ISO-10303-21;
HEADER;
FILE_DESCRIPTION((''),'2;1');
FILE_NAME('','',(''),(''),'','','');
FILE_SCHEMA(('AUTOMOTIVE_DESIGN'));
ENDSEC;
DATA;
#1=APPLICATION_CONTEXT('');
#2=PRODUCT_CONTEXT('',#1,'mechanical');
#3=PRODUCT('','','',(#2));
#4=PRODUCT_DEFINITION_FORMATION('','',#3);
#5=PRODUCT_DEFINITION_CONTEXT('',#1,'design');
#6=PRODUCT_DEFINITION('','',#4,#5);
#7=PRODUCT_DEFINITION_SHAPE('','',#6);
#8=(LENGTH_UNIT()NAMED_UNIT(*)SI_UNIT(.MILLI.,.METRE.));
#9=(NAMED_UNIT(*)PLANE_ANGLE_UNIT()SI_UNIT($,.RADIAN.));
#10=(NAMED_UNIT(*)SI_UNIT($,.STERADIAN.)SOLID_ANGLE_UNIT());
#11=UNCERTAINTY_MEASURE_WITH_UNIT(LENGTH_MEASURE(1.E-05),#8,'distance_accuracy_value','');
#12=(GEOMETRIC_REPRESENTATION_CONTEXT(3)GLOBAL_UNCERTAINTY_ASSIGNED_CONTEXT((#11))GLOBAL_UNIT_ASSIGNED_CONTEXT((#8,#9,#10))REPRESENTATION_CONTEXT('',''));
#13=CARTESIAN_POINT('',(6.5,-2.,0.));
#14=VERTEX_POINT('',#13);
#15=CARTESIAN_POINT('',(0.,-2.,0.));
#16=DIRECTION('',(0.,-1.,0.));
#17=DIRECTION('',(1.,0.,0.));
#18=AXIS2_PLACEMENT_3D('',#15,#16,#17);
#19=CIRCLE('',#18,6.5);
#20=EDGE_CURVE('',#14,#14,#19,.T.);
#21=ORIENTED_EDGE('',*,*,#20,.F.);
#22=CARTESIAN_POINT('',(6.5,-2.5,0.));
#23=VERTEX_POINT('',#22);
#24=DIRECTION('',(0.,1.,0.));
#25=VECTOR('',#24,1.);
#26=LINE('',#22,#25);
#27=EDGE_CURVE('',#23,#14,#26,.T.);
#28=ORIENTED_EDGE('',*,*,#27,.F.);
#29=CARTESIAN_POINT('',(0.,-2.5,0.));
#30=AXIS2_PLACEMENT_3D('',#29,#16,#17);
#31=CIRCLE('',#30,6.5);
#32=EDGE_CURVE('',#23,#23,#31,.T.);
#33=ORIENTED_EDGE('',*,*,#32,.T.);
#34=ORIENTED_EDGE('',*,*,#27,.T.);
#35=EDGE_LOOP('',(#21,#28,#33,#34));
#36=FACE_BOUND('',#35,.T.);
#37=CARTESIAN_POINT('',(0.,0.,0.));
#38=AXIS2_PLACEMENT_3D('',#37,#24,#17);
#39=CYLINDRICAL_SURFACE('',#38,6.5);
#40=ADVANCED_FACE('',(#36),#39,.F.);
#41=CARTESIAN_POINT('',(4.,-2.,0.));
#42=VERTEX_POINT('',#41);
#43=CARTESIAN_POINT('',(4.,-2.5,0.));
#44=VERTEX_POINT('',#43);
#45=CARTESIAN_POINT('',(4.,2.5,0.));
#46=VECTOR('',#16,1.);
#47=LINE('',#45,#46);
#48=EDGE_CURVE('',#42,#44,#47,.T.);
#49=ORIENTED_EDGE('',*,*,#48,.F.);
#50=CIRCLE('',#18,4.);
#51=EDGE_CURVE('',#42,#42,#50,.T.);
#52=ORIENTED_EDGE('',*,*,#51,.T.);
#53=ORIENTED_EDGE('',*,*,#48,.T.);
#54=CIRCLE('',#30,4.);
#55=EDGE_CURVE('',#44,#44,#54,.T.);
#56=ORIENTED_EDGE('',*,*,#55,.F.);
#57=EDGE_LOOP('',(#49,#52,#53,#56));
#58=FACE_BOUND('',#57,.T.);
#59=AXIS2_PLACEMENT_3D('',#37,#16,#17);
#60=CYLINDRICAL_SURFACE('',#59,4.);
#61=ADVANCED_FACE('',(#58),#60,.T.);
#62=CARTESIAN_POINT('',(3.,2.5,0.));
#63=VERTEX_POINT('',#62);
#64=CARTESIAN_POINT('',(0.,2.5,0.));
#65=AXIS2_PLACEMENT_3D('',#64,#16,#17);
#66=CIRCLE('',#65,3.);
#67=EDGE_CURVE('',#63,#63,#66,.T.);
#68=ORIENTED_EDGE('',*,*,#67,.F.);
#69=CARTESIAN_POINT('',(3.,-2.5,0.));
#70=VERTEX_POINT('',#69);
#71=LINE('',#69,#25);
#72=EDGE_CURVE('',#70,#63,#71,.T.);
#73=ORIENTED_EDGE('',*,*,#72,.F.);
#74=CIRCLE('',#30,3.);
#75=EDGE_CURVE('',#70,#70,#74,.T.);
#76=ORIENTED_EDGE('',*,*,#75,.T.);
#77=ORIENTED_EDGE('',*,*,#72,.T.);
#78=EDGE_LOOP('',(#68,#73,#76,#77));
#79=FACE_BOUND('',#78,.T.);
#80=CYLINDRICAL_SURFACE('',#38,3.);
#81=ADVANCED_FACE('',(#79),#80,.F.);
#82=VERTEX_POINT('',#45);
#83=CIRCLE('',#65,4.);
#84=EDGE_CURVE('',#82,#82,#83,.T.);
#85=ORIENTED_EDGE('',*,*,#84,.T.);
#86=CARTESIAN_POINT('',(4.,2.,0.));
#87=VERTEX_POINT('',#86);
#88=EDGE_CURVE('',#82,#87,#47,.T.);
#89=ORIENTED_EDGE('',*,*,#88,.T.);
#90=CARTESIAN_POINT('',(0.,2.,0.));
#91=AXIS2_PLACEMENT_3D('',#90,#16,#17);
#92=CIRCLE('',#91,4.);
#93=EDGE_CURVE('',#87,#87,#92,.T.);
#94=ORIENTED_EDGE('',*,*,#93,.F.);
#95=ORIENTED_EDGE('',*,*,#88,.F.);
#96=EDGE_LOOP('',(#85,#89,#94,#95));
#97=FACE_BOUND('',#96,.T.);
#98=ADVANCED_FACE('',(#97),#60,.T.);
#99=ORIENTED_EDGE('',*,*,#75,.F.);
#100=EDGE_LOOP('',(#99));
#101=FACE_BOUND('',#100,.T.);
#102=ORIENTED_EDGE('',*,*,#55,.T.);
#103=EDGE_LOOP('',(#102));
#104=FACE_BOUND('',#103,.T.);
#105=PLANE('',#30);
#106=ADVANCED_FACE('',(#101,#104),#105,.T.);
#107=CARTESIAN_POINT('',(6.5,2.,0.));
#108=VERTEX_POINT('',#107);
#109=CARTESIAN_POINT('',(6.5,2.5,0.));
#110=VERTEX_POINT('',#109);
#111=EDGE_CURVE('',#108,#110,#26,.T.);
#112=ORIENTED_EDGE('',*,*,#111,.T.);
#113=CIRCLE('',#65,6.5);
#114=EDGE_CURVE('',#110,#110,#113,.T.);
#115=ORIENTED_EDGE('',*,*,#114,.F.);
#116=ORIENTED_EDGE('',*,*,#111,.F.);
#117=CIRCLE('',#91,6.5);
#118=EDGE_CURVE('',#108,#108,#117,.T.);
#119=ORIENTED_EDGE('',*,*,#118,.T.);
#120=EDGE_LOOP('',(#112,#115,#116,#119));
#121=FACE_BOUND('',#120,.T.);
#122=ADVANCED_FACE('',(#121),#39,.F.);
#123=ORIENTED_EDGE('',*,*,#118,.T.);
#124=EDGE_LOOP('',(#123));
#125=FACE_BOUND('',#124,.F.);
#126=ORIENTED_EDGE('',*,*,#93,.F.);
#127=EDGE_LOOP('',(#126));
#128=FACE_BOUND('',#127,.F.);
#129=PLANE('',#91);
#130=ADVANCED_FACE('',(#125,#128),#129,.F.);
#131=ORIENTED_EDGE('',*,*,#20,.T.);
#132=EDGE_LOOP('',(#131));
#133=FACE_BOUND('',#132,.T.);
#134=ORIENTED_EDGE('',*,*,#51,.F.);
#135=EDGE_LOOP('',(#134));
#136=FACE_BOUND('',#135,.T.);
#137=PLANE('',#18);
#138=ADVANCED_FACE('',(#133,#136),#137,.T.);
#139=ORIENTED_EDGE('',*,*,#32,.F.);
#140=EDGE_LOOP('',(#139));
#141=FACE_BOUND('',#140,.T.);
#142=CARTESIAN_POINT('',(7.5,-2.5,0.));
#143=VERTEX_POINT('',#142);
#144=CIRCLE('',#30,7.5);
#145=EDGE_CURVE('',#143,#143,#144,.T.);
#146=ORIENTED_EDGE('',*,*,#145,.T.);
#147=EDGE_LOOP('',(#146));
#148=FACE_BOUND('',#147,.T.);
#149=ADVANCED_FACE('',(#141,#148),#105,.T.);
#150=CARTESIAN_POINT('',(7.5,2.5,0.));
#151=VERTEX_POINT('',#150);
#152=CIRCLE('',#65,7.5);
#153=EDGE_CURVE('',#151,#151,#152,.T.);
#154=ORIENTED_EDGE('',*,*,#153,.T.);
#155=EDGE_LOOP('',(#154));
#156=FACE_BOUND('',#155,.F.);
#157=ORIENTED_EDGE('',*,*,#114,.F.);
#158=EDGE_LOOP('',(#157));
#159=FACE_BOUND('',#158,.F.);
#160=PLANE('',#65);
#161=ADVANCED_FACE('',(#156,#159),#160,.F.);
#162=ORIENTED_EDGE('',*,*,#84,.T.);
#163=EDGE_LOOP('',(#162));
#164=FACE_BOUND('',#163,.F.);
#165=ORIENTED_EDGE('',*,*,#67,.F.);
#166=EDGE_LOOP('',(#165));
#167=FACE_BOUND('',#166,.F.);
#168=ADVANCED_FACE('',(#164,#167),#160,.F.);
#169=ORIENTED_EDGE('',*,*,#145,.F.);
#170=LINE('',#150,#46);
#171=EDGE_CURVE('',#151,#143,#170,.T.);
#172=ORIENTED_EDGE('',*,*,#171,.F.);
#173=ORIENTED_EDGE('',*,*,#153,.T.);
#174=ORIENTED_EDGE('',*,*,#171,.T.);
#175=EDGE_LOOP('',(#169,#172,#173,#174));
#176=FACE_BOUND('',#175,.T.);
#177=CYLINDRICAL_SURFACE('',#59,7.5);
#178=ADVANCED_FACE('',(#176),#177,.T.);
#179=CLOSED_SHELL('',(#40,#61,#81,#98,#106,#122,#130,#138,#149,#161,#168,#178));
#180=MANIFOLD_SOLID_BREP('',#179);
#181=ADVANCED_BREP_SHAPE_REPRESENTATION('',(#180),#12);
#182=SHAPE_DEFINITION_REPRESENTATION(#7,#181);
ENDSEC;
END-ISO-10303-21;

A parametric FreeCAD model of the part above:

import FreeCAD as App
import Part
import Sketcher
from FreeCAD import Vector
Q = App.Units.Quantity

doc = App.newDocument("Part")
body = doc.addObject("PartDesign::Body", "Body")

# Sketch on XZ plane
sketch1 = body.newObject("Sketcher::SketchObject", "Sketch")
sketch1.AttachmentSupport = (doc.getObject("XZ_Plane"), [""])
sketch1.MapMode = "FlatFace"
sketch1.addGeometry([
    Part.Circle(Vector(0, 0, 0), Vector(0, 0, 1), 8),
    Part.Circle(Vector(0, 0, 0), Vector(0, 0, 1), 6),
], False)
sketch1.addConstraint([
    Sketcher.Constraint("Coincident", 0, 3, -1, 1),
    Sketcher.Constraint("Coincident", 1, 3, -1, 1),
    Sketcher.Constraint("Diameter", 0, Q("15 mm")),
    Sketcher.Constraint("Diameter", 1, Q("13 mm")),
])
pad1 = body.newObject("PartDesign::Pad", "Pad")
pad1.Profile = sketch1
pad1.Length = 5
pad1.Midplane = True

# Sketch on XZ plane
sketch2 = body.newObject("Sketcher::SketchObject", "Sketch001")
sketch2.AttachmentSupport = (doc.getObject("XZ_Plane"), [""])
sketch2.MapMode = "FlatFace"
sketch2.addGeometry([
    Part.Circle(Vector(0, 0, 0), Vector(0, 0, 1), 6.5),
    Part.Circle(Vector(0, 0, 0), Vector(0, 0, 1), 4),
], False)
sketch2.addConstraint([
    Sketcher.Constraint("Coincident", 0, 3, -1, 1),
    Sketcher.Constraint("Coincident", 1, 3, -1, 1),
    Sketcher.Constraint("Diameter", 0, Q("13 mm")),
    Sketcher.Constraint("Diameter", 1, Q("8 mm")),
])
pad2 = body.newObject("PartDesign::Pad", "Pad001")
pad2.Profile = sketch2
pad2.Length = 4
pad2.Midplane = True

# Sketch on XZ plane
sketch3 = body.newObject("Sketcher::SketchObject", "Sketch002")
sketch3.AttachmentSupport = (doc.getObject("XZ_Plane"), [""])
sketch3.MapMode = "FlatFace"
sketch3.addGeometry([
    Part.Circle(Vector(0, 0, 0), Vector(0, 0, 1), 4),
    Part.Circle(Vector(0, 0, 0), Vector(0, 0, 1), 3),
], False)
sketch3.addConstraint([
    Sketcher.Constraint("Coincident", 0, 3, -1, 1),
    Sketcher.Constraint("Coincident", 1, 3, -1, 1),
    Sketcher.Constraint("Diameter", 0, Q("8 mm")),
    Sketcher.Constraint("Diameter", 1, Q("6 mm")),
])
pad3 = body.newObject("PartDesign::Pad", "Pad002")
pad3.Profile = sketch3
pad3.Length = 5
pad3.Midplane = True

doc.recompute()
